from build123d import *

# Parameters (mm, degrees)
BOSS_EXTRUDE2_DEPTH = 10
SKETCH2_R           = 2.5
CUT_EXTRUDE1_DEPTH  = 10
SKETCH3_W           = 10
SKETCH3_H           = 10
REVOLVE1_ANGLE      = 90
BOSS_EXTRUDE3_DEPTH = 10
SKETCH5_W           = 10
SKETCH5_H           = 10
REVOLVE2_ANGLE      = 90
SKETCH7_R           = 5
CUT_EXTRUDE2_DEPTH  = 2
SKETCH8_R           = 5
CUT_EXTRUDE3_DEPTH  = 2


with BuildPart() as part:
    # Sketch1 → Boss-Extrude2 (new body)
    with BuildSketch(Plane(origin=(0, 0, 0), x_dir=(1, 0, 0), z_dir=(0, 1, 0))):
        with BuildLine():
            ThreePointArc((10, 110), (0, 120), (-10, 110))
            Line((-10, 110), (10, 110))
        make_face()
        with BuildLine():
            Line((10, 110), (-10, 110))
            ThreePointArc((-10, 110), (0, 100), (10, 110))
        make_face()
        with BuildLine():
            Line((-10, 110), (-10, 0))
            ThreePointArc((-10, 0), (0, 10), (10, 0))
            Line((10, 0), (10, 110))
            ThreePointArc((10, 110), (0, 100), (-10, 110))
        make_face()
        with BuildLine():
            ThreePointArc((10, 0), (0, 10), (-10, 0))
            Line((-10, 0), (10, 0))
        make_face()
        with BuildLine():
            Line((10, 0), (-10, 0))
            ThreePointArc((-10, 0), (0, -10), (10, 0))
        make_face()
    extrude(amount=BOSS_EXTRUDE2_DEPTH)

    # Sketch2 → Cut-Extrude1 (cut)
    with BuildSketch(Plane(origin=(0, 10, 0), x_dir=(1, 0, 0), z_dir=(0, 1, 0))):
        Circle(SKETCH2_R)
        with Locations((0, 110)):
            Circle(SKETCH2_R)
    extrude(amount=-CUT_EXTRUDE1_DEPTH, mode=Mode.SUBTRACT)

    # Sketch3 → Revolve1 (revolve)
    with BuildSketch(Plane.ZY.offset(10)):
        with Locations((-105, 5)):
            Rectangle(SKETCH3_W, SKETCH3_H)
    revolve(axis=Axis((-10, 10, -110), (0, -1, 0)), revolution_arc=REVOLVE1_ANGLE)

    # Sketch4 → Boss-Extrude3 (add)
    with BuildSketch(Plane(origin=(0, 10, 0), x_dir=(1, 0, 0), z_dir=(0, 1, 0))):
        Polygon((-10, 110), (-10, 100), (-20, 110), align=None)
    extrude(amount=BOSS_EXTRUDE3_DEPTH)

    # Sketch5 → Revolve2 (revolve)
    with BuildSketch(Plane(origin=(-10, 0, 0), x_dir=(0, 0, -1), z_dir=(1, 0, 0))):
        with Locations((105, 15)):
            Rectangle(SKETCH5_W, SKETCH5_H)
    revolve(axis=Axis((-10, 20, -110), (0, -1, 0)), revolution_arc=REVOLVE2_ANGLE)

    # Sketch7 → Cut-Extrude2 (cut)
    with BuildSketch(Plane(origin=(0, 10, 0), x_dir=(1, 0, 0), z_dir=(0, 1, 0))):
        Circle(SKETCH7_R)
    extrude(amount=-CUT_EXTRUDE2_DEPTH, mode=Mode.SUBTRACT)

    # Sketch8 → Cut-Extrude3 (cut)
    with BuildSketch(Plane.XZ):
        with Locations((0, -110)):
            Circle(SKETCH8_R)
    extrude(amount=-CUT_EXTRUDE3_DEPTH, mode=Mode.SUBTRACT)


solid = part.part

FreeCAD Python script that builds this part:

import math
import FreeCAD as App
import Part
import Sketcher
from FreeCAD import Vector

doc = App.newDocument("Part")
params = doc.addObject("Spreadsheet::Sheet", "Params")
for row, (alias, value) in enumerate([
    ("sketch1_radius", "10 mm"),
    ("sketch1_height", "110 mm"),
    ("pad1_length", "10 mm"),
    ("sketch2_diameter", "5 mm"),
    ("pocket1_length", "10 mm"),
    ("sketch3_width", "10 mm"),
    ("revolution_angle", "90 deg"),
    ("sketch4_width", "10 mm"),
    ("pad2_length", "10 mm"),
    ("sketch5_width", "10 mm"),
    ("revolution2_angle", "90 deg"),
    ("sketch6_diameter", "10 mm"),
    ("pocket2_length", "2 mm"),
    ("sketch7_diameter", "10 mm"),
    ("pocket3_length", "2 mm"),
], start=1):
    params.set(f"A{row}", alias)
    params.set(f"B{row}", "=" + value)
    params.setAlias(f"B{row}", alias)

body = doc.addObject("PartDesign::Body", "Body")

sketch1 = doc.addObject("Sketcher::SketchObject", "Sketch")
body.addObject(sketch1)
sketch1.AttachmentSupport = (doc.XZ_Plane, [""])
sketch1.MapMode = "FlatFace"
sketch1.addGeometry([
    Part.LineSegment(Vector(-10, -110, 0), Vector(-10, 0, 0)),
    Part.ArcOfCircle(Part.Circle(Vector(0, 0, 0), Vector(0, 0, 1), 10), math.radians(0), math.radians(180)),
    Part.LineSegment(Vector(10, 0, 0), Vector(10, -110, 0)),
    Part.ArcOfCircle(Part.Circle(Vector(0, -110, 0), Vector(0, 0, 1), 10), math.radians(180), math.radians(360)),
], False)
sketch1.addConstraint([
    Sketcher.Constraint("Tangent", 0, 2, 1, 2),
    Sketcher.Constraint("Tangent", 1, 1, 2, 1),
    Sketcher.Constraint("Tangent", 2, 2, 3, 2),
    Sketcher.Constraint("Tangent", 3, 1, 0, 1),
    Sketcher.Constraint("Vertical", 0),
    Sketcher.Constraint("Vertical", 2),
    Sketcher.Constraint("Coincident", 1, 3, -1, 1),
    Sketcher.Constraint("Radius", 1, 10.0),
    Sketcher.Constraint("DistanceY", 0, 1, 0, 2, 110.0),
])
sketch1.setExpression("Constraints[7]", "Params.sketch1_radius")
sketch1.setExpression("Constraints[8]", "Params.sketch1_height")
pad1 = doc.addObject("PartDesign::Pad", "Pad")
body.addObject(pad1)
pad1.Profile = sketch1
pad1.setExpression("Length", "Params.pad1_length")
pad1.Reversed = True

sketch2 = doc.addObject("Sketcher::SketchObject", "Sketch001")
body.addObject(sketch2)
sketch2.AttachmentSupport = (doc.XZ_Plane, [""])
sketch2.MapMode = "FlatFace"
sketch2.AttachmentOffset = App.Placement(Vector(0, 0, -10), App.Rotation())
sketch2.addGeometry([
    Part.Circle(Vector(0, 0, 0), Vector(0, 0, 1), 2.5),
    Part.Circle(Vector(0, -110, 0), Vector(0, 0, 1), 2.5),
], False)
sketch2.addConstraint([
    Sketcher.Constraint("Coincident", 0, 3, -1, 1),
    Sketcher.Constraint("Equal", 0, 1),
    Sketcher.Constraint("PointOnObject", 1, 3, -2),
    Sketcher.Constraint("Diameter", 0, 5.0),
    Sketcher.Constraint("DistanceY", 1, 3, -1, 1, 110.0),
])
sketch2.setExpression("Constraints[3]", "Params.sketch2_diameter")
pocket1 = doc.addObject("PartDesign::Pocket", "Pocket")
body.addObject(pocket1)
pocket1.Profile = sketch2
pocket1.setExpression("Length", "Params.pocket1_length")
pocket1.Reversed = True

sketch3 = doc.addObject("Sketcher::SketchObject", "Sketch002")
body.addObject(sketch3)
sketch3.AttachmentSupport = (doc.YZ_Plane, [""])
sketch3.MapMode = "FlatFace"
sketch3.AttachmentOffset = App.Placement(Vector(0, 0, -10), App.Rotation())
sketch3.addGeometry([
    Part.LineSegment(Vector(10, -110, 0), Vector(0, -110, 0)),
    Part.LineSegment(Vector(0, -110, 0), Vector(0, -100, 0)),
    Part.LineSegment(Vector(0, -100, 0), Vector(10, -100, 0)),
    Part.LineSegment(Vector(10, -100, 0), Vector(10, -110, 0)),
], False)
sketch3.addGeometry(Part.LineSegment(Vector(10, -110, 0), Vector(0, -110, 0)), True)
sketch3.addConstraint([
    Sketcher.Constraint("Coincident", 0, 2, 1, 1),
    Sketcher.Constraint("Coincident", 1, 2, 2, 1),
    Sketcher.Constraint("Coincident", 2, 2, 3, 1),
    Sketcher.Constraint("Coincident", 3, 2, 0, 1),
    Sketcher.Constraint("Horizontal", 0),
    Sketcher.Constraint("Vertical", 1),
    Sketcher.Constraint("Horizontal", 2),
    Sketcher.Constraint("Vertical", 3),
    Sketcher.Constraint("Horizontal", 4),
    Sketcher.Constraint("Coincident", 4, 1, 3, 2),
    Sketcher.Constraint("PointOnObject", 0, 2, -2),
    Sketcher.Constraint("PointOnObject", 4, 2, -2),
    Sketcher.Constraint("Equal", 4, 1),
    Sketcher.Constraint("DistanceX", 0, 2, 0, 1, 10.0),
    Sketcher.Constraint("DistanceY", 0, 2, -1, 1, 110.0),
])
sketch3.setExpression("Constraints[13]", "Params.sketch3_width")
revolution = doc.addObject("PartDesign::Revolution", "Revolution")
body.addObject(revolution)
revolution.Profile = sketch3
revolution.ReferenceAxis = (sketch3, ["Axis0"])
revolution.setExpression("Angle", "Params.revolution_angle")

sketch4 = doc.addObject("Sketcher::SketchObject", "Sketch003")
body.addObject(sketch4)
sketch4.AttachmentSupport = (doc.XZ_Plane, [""])
sketch4.MapMode = "FlatFace"
sketch4.AttachmentOffset = App.Placement(Vector(0, 0, -10), App.Rotation())
sketch4.addGeometry([
    Part.LineSegment(Vector(-10, -100, 0), Vector(-10, -110, 0)),
    Part.LineSegment(Vector(-10, -110, 0), Vector(-20, -110, 0)),
    Part.LineSegment(Vector(-20, -110, 0), Vector(-10, -100, 0)),
], False)
sketch4.addConstraint([
    Sketcher.Constraint("Coincident", 0, 2, 1, 1),
    Sketcher.Constraint("Coincident", 1, 2, 2, 1),
    Sketcher.Constraint("Coincident", 2, 2, 0, 1),
    Sketcher.Constraint("Vertical", 0),
    Sketcher.Constraint("Horizontal", 1),
    Sketcher.Constraint("Equal", 1, 0),
    Sketcher.Constraint("DistanceX", 1, 2, 1, 1, 10.0),
    Sketcher.Constraint("DistanceX", 0, 2, -1, 1, 10.0),
    Sketcher.Constraint("DistanceY", 0, 2, -1, 1, 110.0),
])
sketch4.setExpression("Constraints[6]", "Params.sketch4_width")
pad2 = doc.addObject("PartDesign::Pad", "Pad001")
body.addObject(pad2)
pad2.Profile = sketch4
pad2.setExpression("Length", "Params.pad2_length")
pad2.Reversed = True

sketch5 = doc.addObject("Sketcher::SketchObject", "Sketch004")
body.addObject(sketch5)
sketch5.AttachmentSupport = (doc.YZ_Plane, [""])
sketch5.MapMode = "FlatFace"
sketch5.AttachmentOffset = App.Placement(Vector(0, 0, -10), App.Rotation())
sketch5.addGeometry([
    Part.LineSegment(Vector(20, -100, 0), Vector(10, -100, 0)),
    Part.LineSegment(Vector(10, -100, 0), Vector(10, -110, 0)),
    Part.LineSegment(Vector(10, -110, 0), Vector(20, -110, 0)),
    Part.LineSegment(Vector(20, -110, 0), Vector(20, -100, 0)),
], False)
sketch5.addGeometry(Part.LineSegment(Vector(20, -110, 0), Vector(10, -110, 0)), True)
sketch5.addConstraint([
    Sketcher.Constraint("Coincident", 0, 2, 1, 1),
    Sketcher.Constraint("Coincident", 1, 2, 2, 1),
    Sketcher.Constraint("Coincident", 2, 2, 3, 1),
    Sketcher.Constraint("Coincident", 3, 2, 0, 1),
    Sketcher.Constraint("Horizontal", 0),
    Sketcher.Constraint("Vertical", 1),
    Sketcher.Constraint("Horizontal", 2),
    Sketcher.Constraint("Vertical", 3),
    Sketcher.Constraint("Horizontal", 4),
    Sketcher.Constraint("Coincident", 4, 1, 2, 2),
    Sketcher.Constraint("Vertical", 0, 2, 4, 2),
    Sketcher.Constraint("Equal", 4, 1),
    Sketcher.Constraint("DistanceX", 0, 2, 0, 1, 10.0),
    Sketcher.Constraint("DistanceX", -1, 1, 0, 2, 10.0),
    Sketcher.Constraint("DistanceY", 0, 2, -1, 1, 100.0),
])
sketch5.setExpression("Constraints[12]", "Params.sketch5_width")
revolution2 = doc.addObject("PartDesign::Revolution", "Revolution001")
body.addObject(revolution2)
revolution2.Profile = sketch5
revolution2.ReferenceAxis = (sketch5, ["Axis0"])
revolution2.setExpression("Angle", "Params.revolution2_angle")

sketch6 = doc.addObject("Sketcher::SketchObject", "Sketch005")
body.addObject(sketch6)
sketch6.AttachmentSupport = (doc.XZ_Plane, [""])
sketch6.MapMode = "FlatFace"
sketch6.AttachmentOffset = App.Placement(Vector(0, 0, -10), App.Rotation())
sketch6.addGeometry(Part.Circle(Vector(0, 0, 0), Vector(0, 0, 1), 5), False)
sketch6.addConstraint([
    Sketcher.Constraint("Coincident", 0, 3, -1, 1),
    Sketcher.Constraint("Diameter", 0, 10.0),
])
sketch6.setExpression("Constraints[1]", "Params.sketch6_diameter")
pocket2 = doc.addObject("PartDesign::Pocket", "Pocket001")
body.addObject(pocket2)
pocket2.Profile = sketch6
pocket2.setExpression("Length", "Params.pocket2_length")
pocket2.Reversed = True

sketch7 = doc.addObject("Sketcher::SketchObject", "Sketch006")
body.addObject(sketch7)
sketch7.AttachmentSupport = (doc.XZ_Plane, [""])
sketch7.MapMode = "FlatFace"
sketch7.addGeometry(Part.Circle(Vector(0, -110, 0), Vector(0, 0, 1), 5), False)
sketch7.addConstraint([
    Sketcher.Constraint("PointOnObject", 0, 3, -2),
    Sketcher.Constraint("Diameter", 0, 10.0),
    Sketcher.Constraint("DistanceY", 0, 3, -1, 1, 110.0),
])
sketch7.setExpression("Constraints[1]", "Params.sketch7_diameter")
pocket3 = doc.addObject("PartDesign::Pocket", "Pocket002")
body.addObject(pocket3)
pocket3.Profile = sketch7
pocket3.setExpression("Length", "Params.pocket3_length")

doc.recompute()
